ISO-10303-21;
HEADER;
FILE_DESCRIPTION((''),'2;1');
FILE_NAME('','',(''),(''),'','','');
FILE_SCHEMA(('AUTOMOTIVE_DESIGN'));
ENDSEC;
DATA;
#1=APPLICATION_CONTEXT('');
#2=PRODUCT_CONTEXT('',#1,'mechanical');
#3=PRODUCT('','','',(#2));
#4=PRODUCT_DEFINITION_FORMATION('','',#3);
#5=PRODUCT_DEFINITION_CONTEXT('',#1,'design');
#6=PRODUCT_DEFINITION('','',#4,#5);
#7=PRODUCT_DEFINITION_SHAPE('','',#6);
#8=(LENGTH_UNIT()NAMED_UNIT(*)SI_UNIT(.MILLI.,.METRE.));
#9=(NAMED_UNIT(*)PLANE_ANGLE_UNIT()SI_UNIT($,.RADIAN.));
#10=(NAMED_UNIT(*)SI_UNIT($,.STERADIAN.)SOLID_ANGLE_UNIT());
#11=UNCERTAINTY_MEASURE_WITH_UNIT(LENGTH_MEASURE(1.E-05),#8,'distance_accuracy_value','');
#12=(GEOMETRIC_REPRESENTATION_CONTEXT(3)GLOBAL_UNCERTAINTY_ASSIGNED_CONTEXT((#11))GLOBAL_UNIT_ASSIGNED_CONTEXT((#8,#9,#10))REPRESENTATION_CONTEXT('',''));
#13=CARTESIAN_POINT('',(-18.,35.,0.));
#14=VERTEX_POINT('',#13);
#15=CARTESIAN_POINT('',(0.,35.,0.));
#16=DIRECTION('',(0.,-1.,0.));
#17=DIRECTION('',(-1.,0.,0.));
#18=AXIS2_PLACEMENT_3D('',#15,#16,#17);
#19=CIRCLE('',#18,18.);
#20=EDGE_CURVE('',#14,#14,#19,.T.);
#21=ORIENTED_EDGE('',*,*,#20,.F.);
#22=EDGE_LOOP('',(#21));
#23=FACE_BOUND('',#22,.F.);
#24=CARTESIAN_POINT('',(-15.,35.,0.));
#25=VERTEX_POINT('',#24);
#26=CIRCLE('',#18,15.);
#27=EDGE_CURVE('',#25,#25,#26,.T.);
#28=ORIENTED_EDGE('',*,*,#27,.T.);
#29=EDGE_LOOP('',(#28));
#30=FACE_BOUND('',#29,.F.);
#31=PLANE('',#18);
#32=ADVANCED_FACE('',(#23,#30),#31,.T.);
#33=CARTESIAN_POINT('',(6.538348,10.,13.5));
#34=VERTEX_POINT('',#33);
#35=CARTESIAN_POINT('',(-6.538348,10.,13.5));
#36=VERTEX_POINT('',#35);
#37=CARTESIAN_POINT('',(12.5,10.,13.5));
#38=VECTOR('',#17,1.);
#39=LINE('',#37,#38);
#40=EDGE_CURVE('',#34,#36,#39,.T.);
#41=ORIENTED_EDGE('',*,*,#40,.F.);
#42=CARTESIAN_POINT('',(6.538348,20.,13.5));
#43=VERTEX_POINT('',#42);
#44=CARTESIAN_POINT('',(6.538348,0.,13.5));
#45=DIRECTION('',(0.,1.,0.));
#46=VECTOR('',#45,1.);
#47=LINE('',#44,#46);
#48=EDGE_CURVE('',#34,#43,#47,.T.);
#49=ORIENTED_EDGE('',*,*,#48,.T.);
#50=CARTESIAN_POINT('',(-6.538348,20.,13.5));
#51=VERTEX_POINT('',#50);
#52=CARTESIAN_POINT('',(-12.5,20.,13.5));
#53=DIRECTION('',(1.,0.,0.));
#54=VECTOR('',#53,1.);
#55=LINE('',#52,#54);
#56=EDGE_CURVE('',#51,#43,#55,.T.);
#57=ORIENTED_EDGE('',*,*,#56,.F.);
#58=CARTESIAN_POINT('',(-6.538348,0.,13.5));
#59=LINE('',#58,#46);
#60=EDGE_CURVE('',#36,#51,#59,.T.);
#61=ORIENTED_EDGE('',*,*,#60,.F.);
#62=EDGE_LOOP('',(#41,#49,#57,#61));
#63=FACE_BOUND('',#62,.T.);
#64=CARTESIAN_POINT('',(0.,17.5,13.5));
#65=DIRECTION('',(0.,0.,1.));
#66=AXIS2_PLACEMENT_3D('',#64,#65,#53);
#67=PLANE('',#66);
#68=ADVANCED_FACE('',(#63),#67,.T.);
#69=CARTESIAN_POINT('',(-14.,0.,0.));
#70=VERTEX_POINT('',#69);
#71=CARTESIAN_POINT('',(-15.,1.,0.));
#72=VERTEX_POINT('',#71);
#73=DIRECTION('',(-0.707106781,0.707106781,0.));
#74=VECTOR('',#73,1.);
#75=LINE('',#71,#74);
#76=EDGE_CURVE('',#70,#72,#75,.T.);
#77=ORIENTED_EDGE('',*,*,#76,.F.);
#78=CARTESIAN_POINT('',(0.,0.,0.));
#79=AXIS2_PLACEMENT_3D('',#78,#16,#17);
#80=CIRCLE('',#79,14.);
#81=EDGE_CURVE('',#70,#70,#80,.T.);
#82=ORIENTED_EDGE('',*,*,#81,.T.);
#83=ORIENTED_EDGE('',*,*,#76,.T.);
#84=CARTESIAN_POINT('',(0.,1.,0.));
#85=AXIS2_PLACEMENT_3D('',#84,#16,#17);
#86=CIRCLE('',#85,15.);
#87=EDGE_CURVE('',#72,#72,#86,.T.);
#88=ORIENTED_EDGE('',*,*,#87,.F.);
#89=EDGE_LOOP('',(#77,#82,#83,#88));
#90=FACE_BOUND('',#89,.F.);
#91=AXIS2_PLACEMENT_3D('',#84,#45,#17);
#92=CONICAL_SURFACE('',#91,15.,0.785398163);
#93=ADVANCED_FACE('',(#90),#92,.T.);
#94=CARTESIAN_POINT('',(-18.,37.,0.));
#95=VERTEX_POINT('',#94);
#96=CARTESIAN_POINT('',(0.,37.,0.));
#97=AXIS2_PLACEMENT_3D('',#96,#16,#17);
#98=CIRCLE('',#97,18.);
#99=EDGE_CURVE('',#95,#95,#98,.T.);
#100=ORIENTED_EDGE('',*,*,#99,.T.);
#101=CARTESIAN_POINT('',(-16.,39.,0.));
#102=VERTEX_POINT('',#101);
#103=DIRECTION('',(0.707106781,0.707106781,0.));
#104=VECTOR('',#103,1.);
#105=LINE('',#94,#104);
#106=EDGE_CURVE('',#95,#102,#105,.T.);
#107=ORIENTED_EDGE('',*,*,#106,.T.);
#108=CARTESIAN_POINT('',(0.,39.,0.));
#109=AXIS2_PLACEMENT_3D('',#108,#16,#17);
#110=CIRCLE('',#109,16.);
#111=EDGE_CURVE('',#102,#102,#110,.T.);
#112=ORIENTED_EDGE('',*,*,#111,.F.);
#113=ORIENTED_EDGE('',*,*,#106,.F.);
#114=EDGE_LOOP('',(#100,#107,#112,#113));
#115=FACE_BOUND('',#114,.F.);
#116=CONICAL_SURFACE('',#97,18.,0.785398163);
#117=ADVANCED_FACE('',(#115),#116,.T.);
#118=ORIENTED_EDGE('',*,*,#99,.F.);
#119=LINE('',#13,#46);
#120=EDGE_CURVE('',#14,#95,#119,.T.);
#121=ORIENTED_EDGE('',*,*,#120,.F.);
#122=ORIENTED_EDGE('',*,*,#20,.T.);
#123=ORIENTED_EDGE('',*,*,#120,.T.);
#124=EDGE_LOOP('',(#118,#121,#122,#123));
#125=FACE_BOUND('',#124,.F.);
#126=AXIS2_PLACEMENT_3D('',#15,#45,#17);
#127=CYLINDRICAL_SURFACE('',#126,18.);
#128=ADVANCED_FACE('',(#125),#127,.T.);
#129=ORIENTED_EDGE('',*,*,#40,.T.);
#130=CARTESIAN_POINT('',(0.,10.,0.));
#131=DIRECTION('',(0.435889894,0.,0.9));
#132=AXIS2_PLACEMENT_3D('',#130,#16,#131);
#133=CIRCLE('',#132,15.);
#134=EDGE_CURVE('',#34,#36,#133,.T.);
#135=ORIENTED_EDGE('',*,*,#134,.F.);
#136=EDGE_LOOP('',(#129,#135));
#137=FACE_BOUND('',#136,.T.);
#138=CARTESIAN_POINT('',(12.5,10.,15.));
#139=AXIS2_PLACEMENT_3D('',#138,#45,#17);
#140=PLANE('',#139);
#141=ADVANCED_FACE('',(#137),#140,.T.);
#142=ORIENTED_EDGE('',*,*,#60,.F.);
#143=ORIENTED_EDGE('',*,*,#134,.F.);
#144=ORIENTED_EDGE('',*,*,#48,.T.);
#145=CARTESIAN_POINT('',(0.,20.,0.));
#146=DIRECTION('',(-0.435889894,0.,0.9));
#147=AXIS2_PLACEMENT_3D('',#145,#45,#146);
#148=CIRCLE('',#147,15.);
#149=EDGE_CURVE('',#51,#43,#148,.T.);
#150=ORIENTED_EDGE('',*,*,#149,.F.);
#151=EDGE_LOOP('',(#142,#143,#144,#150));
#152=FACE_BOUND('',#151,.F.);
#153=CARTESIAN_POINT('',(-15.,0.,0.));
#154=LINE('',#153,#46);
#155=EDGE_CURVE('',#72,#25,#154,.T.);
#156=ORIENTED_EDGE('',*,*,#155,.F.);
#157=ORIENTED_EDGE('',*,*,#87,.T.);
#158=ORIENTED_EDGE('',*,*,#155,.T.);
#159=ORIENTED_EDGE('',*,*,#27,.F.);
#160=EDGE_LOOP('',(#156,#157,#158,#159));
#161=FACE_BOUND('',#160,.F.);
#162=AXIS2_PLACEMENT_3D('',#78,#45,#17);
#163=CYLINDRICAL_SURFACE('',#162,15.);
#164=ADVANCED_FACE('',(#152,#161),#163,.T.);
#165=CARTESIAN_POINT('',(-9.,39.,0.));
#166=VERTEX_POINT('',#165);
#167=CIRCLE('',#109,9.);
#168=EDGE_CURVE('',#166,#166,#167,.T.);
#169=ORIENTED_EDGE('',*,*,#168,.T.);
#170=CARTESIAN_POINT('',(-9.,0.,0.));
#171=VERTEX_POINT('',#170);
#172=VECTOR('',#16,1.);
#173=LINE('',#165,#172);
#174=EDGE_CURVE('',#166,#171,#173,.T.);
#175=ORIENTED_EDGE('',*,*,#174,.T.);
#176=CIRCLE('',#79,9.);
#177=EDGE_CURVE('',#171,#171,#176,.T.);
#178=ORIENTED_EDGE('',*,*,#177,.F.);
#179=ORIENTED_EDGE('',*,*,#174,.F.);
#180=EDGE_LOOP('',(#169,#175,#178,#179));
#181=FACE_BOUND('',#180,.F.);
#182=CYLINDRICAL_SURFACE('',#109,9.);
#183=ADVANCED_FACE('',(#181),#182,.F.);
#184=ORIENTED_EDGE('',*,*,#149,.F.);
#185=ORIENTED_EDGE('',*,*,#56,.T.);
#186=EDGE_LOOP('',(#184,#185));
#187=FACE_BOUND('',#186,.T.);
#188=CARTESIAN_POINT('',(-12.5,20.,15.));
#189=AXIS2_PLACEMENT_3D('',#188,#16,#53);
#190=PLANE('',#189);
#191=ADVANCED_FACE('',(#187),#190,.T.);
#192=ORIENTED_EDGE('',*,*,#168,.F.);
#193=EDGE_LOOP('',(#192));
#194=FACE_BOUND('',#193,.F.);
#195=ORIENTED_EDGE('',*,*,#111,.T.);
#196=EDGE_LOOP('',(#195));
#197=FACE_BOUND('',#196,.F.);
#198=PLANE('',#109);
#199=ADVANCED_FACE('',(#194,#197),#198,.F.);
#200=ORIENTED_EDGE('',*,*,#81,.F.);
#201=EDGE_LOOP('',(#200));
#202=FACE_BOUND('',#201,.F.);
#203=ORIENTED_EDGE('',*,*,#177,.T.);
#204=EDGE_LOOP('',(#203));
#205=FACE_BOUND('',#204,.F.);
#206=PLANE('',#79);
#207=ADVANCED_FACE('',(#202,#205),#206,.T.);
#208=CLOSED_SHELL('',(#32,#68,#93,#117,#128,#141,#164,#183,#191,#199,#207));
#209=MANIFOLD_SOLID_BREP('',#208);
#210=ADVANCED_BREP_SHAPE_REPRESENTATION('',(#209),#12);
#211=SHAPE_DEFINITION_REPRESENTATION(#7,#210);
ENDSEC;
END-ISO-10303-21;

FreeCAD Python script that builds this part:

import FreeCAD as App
import Part
import Sketcher
Q = App.Units.Quantity


def edges_at(feature, points):
    """Names of the edges that pass closest to the given points."""
    edges = feature.Shape.Edges
    near = lambda p: min(range(len(edges)), key=lambda i: edges[i].distToShape(Part.Vertex(*p))[0])
    return sorted({f"Edge{near(p) + 1}" for p in points})


def add_polygon(sketch, points):
    """Adds a closed chain of lines whose ends are joined by coincident constraints."""
    first, n = sketch.GeometryCount, len(points)
    for a, b in zip(points, points[1:] + points[:1]):
        sketch.addGeometry(Part.LineSegment(App.Vector(*a, 0), App.Vector(*b, 0)), False)
    for i in range(n):
        sketch.addConstraint(Sketcher.Constraint("Coincident", first + i, 2, first + (i + 1) % n, 1))

doc = App.newDocument("Part")
body = doc.addObject("PartDesign::Body", "Body")

# Sketch on XY plane
sketch1 = body.newObject("Sketcher::SketchObject", "Sketch")
sketch1.AttachmentSupport = (doc.getObject("XY_Plane"), [""])
sketch1.MapMode = "FlatFace"
add_polygon(sketch1, [(-15, 0), (-9, 0), (-9, 39), (-16, 39), (-18, 37), (-18, 35), (-15, 35)])  # lines 0-6
sketch1.addConstraint(Sketcher.Constraint("Horizontal", 0))
sketch1.addConstraint(Sketcher.Constraint("Vertical", 1))
sketch1.addConstraint(Sketcher.Constraint("Horizontal", 2))
sketch1.addConstraint(Sketcher.Constraint("Vertical", 4))
sketch1.addConstraint(Sketcher.Constraint("Horizontal", 5))
sketch1.addConstraint(Sketcher.Constraint("Vertical", 6))
sketch1.addConstraint(Sketcher.Constraint("PointOnObject", 0, 2, -1))
sketch1.addConstraint(Sketcher.Constraint("DistanceY", 1, 1, 1, 2, Q("39 mm")))
sketch1.addConstraint(Sketcher.Constraint("DistanceY", 4, 2, 4, 1, Q("2 mm")))
sketch1.addConstraint(Sketcher.Constraint("DistanceX", 3, 2, -1, 1, Q("18 mm")))
sketch1.addConstraint(Sketcher.Constraint("DistanceX", 3, 2, 2, 2, Q("2 mm")))
sketch1.addConstraint(Sketcher.Constraint("DistanceY", 3, 2, 2, 2, Q("2 mm")))
sketch1.addConstraint(Sketcher.Constraint("DistanceX", 0, 1, 0, 2, Q("6 mm")))
sketch1.addConstraint(Sketcher.Constraint("DistanceX", 2, 2, 2, 1, Q("7 mm")))
revolution = body.newObject("PartDesign::Revolution", "Revolution")
revolution.Profile = sketch1
revolution.ReferenceAxis = (sketch1, ["V_Axis"])
revolution.Angle = 360
doc.recompute()

chamfer = body.newObject("PartDesign::Chamfer", "Chamfer")
chamfer.Base = (revolution, edges_at(revolution, [(15, 0, 0)]))
chamfer.Size = 1

# Sketch on XY plane
sketch2 = body.newObject("Sketcher::SketchObject", "Sketch001")
sketch2.AttachmentSupport = (doc.getObject("XY_Plane"), [""])
sketch2.MapMode = "FlatFace"
sketch2.AttachmentOffset = App.Placement(App.Vector(0, 0, 15), App.Rotation())
add_polygon(sketch2, [(-12, 10), (12, 10), (12, 20), (-12, 20)])  # lines 0-3
sketch2.addConstraint(Sketcher.Constraint("Horizontal", 0))
sketch2.addConstraint(Sketcher.Constraint("Vertical", 1))
sketch2.addConstraint(Sketcher.Constraint("Horizontal", 2))
sketch2.addConstraint(Sketcher.Constraint("Vertical", 3))
sketch2.addConstraint(Sketcher.Constraint("DistanceX", 0, 1, 0, 2, Q("25 mm")))
sketch2.addConstraint(Sketcher.Constraint("DistanceY", 1, 1, 1, 2, Q("10 mm")))
sketch2.addConstraint(Sketcher.Constraint("DistanceY", -1, 1, 0, 2, Q("10 mm")))
sketch2.addConstraint(Sketcher.Constraint("DistanceX", -1, 1, 0, 2, Q("12.5 mm")))
pocket1 = body.newObject("PartDesign::Pocket", "Pocket")
pocket1.Profile = sketch2
pocket1.Length = 1.5

doc.recompute()
